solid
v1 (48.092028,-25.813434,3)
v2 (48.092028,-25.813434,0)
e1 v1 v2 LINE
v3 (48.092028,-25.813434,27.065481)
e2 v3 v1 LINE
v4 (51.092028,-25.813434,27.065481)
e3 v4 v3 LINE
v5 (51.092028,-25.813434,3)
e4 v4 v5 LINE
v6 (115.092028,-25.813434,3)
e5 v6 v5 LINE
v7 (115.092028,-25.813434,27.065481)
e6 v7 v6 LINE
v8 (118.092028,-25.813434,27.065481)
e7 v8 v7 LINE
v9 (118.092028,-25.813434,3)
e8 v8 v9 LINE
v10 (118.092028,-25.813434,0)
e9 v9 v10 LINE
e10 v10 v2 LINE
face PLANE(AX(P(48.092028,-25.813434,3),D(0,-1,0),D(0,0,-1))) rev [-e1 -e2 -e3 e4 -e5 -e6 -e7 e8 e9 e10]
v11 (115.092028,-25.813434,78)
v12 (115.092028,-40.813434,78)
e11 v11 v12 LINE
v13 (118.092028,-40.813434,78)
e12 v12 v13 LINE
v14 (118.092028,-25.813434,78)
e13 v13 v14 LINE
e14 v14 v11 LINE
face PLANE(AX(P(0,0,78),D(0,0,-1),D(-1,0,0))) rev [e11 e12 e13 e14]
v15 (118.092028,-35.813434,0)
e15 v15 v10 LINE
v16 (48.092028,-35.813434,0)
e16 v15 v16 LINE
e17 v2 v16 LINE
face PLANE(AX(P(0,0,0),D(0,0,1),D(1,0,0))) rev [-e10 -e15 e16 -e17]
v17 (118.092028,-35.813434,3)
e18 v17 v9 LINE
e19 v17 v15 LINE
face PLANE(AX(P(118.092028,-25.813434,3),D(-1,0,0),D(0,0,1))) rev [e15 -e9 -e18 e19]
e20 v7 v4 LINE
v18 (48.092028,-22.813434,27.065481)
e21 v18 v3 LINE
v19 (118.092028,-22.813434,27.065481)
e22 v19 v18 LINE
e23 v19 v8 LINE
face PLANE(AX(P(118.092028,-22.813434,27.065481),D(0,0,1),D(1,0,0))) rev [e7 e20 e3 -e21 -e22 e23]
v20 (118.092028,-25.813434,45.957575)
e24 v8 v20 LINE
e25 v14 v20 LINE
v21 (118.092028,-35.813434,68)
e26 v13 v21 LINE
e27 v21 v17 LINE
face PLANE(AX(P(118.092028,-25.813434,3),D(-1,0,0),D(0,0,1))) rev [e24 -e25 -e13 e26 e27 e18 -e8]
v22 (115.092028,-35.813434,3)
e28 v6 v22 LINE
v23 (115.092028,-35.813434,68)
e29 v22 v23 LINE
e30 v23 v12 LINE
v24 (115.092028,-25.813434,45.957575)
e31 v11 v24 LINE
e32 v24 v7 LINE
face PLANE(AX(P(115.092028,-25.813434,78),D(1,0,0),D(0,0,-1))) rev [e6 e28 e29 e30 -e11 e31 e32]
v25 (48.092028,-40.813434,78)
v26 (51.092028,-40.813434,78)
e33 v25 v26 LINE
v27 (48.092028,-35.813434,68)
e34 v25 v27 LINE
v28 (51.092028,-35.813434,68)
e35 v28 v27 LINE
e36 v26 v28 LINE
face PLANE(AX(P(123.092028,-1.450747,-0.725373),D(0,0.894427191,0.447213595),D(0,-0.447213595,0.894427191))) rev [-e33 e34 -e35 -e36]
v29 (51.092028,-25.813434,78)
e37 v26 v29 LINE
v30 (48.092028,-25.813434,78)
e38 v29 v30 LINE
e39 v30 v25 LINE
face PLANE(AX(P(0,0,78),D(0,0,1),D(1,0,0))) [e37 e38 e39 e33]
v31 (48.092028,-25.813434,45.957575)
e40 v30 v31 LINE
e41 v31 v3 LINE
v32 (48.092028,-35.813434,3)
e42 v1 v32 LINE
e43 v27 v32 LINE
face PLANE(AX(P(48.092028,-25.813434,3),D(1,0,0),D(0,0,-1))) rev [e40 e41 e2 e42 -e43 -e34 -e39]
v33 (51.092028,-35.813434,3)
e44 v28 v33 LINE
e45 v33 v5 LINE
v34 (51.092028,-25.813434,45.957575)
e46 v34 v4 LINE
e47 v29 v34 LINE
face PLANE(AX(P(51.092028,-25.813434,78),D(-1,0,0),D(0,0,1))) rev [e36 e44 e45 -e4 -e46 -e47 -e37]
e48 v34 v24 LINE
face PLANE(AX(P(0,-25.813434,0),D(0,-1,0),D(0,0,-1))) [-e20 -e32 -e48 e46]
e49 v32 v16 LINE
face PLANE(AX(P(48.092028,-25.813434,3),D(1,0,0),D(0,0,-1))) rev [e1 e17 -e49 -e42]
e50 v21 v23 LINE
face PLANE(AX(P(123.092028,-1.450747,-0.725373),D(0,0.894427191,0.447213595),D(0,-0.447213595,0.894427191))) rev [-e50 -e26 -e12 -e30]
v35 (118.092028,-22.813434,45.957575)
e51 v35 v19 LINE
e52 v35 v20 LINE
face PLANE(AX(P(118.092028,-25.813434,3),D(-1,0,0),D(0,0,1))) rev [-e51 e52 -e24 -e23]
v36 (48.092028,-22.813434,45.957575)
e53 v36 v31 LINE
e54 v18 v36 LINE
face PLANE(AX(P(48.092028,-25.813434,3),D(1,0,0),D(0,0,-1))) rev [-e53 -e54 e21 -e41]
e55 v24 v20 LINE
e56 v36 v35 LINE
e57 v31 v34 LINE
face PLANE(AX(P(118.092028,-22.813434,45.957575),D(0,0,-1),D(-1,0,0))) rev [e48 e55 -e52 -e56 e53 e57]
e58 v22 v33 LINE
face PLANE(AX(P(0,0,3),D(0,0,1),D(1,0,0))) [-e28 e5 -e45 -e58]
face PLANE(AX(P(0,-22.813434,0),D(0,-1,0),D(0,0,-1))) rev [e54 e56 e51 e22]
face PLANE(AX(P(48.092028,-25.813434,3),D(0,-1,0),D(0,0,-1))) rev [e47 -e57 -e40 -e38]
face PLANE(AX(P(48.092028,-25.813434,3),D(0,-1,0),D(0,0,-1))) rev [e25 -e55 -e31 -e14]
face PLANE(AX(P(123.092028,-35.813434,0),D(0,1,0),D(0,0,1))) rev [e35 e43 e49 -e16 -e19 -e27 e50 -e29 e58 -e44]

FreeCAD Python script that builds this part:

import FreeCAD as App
import Part
import Sketcher

V = App.Vector
Q = App.Units.Quantity

doc = App.newDocument("Part")
body = doc.addObject("PartDesign::Body", "Body")

# Sketch on XY plane
sketch1 = body.newObject("Sketcher::SketchObject", "Sketch")
sketch1.AttachmentSupport = (doc.getObject("XY_Plane"), [""])
sketch1.MapMode = "FlatFace"
sketch1.addGeometry(Part.LineSegment(V(48.092028, -25.813434, 0), V(48.092028, -40.813434, 0)), False)
sketch1.addGeometry(Part.LineSegment(V(48.092028, -40.813434, 0), V(118.092028, -40.813434, 0)), False)
sketch1.addGeometry(Part.LineSegment(V(118.092028, -40.813434, 0), V(118.092028, -25.813434, 0)), False)
sketch1.addGeometry(Part.LineSegment(V(118.092028, -25.813434, 0), V(48.092028, -25.813434, 0)), False)
sketch1.addConstraint(Sketcher.Constraint("Coincident", 0, 2, 1, 1))
sketch1.addConstraint(Sketcher.Constraint("Coincident", 1, 2, 2, 1))
sketch1.addConstraint(Sketcher.Constraint("Coincident", 2, 2, 3, 1))
sketch1.addConstraint(Sketcher.Constraint("Coincident", 3, 2, 0, 1))
sketch1.addConstraint(Sketcher.Constraint("Vertical", 0))
sketch1.addConstraint(Sketcher.Constraint("Horizontal", 1))
sketch1.addConstraint(Sketcher.Constraint("Vertical", 2))
sketch1.addConstraint(Sketcher.Constraint("Horizontal", 3))
sketch1.addConstraint(Sketcher.Constraint("DistanceX", 1, 1, 1, 2, Q("70 mm")))
sketch1.addConstraint(Sketcher.Constraint("DistanceY", 0, 2, 0, 1, Q("15 mm")))
sketch1.addConstraint(Sketcher.Constraint("DistanceX", -1, 1, 0, 2, Q("48.092028 mm")))
sketch1.addConstraint(Sketcher.Constraint("DistanceY", 0, 2, -1, 1, Q("40.813434 mm")))
pad1 = body.newObject("PartDesign::Pad", "Pad")
pad1.Profile = sketch1
pad1.Length = 3

# Sketch on XY plane
sketch2 = body.newObject("Sketcher::SketchObject", "Sketch001")
sketch2.AttachmentSupport = (doc.getObject("XY_Plane"), [""])
sketch2.MapMode = "FlatFace"
sketch2.AttachmentOffset = App.Placement(V(0, 0, 3), App.Rotation())
sketch2.addGeometry(Part.LineSegment(V(48.092028, -25.813434, 0), V(48.092028, -40.813434, 0)), False)
sketch2.addGeometry(Part.LineSegment(V(48.092028, -40.813434, 0), V(51.092028, -40.813434, 0)), False)
sketch2.addGeometry(Part.LineSegment(V(51.092028, -40.813434, 0), V(51.092028, -25.813434, 0)), False)
sketch2.addGeometry(Part.LineSegment(V(51.092028, -25.813434, 0), V(48.092028, -25.813434, 0)), False)
sketch2.addGeometry(Part.LineSegment(V(115.092028, -25.813434, 0), V(115.092028, -40.813434, 0)), False)
sketch2.addGeometry(Part.LineSegment(V(115.092028, -40.813434, 0), V(118.092028, -40.813434, 0)), False)
sketch2.addGeometry(Part.LineSegment(V(118.092028, -40.813434, 0), V(118.092028, -25.813434, 0)), False)
sketch2.addGeometry(Part.LineSegment(V(118.092028, -25.813434, 0), V(115.092028, -25.813434, 0)), False)
sketch2.addConstraint(Sketcher.Constraint("Coincident", 0, 2, 1, 1))
sketch2.addConstraint(Sketcher.Constraint("Coincident", 1, 2, 2, 1))
sketch2.addConstraint(Sketcher.Constraint("Coincident", 2, 2, 3, 1))
sketch2.addConstraint(Sketcher.Constraint("Coincident", 3, 2, 0, 1))
sketch2.addConstraint(Sketcher.Constraint("Coincident", 4, 2, 5, 1))
sketch2.addConstraint(Sketcher.Constraint("Coincident", 5, 2, 6, 1))
sketch2.addConstraint(Sketcher.Constraint("Coincident", 6, 2, 7, 1))
sketch2.addConstraint(Sketcher.Constraint("Coincident", 7, 2, 4, 1))
sketch2.addConstraint(Sketcher.Constraint("Vertical", 0))
sketch2.addConstraint(Sketcher.Constraint("Horizontal", 1))
sketch2.addConstraint(Sketcher.Constraint("Vertical", 2))
sketch2.addConstraint(Sketcher.Constraint("Horizontal", 3))
sketch2.addConstraint(Sketcher.Constraint("Vertical", 4))
sketch2.addConstraint(Sketcher.Constraint("Horizontal", 5))
sketch2.addConstraint(Sketcher.Constraint("Vertical", 6))
sketch2.addConstraint(Sketcher.Constraint("Horizontal", 7))
sketch2.addConstraint(Sketcher.Constraint("Horizontal", 1, 2, 4, 2))
sketch2.addConstraint(Sketcher.Constraint("Horizontal", 3, 2, 6, 2))
sketch2.addConstraint(Sketcher.Constraint("Equal", 3, 5))
sketch2.addConstraint(Sketcher.Constraint("DistanceX", 1, 1, 1, 2, Q("3 mm")))
sketch2.addConstraint(Sketcher.Constraint("DistanceY", 0, 2, 0, 1, Q("15 mm")))
sketch2.addConstraint(Sketcher.Constraint("DistanceX", 1, 2, 4, 2, Q("64 mm")))
sketch2.addConstraint(Sketcher.Constraint("DistanceX", -1, 1, 0, 2, Q("48.092028 mm")))
sketch2.addConstraint(Sketcher.Constraint("DistanceY", 0, 2, -1, 1, Q("40.813434 mm")))
pad2 = body.newObject("PartDesign::Pad", "Pad001")
pad2.Profile = sketch2
pad2.Length = 75

# Sketch on YZ plane
sketch3 = body.newObject("Sketcher::SketchObject", "Sketch002")
sketch3.AttachmentSupport = (doc.getObject("YZ_Plane"), [""])
sketch3.MapMode = "FlatFace"
sketch3.AttachmentOffset = App.Placement(V(0, 0, 48.092028), App.Rotation())
sketch3.addGeometry(Part.LineSegment(V(-40.813434, 0, 0), V(-40.813434, 78, 0)), False)
sketch3.addGeometry(Part.LineSegment(V(-40.813434, 78, 0), V(-35.813434, 68, 0)), False)
sketch3.addGeometry(Part.LineSegment(V(-35.813434, 68, 0), V(-35.813434, 0, 0)), False)
sketch3.addGeometry(Part.LineSegment(V(-35.813434, 0, 0), V(-40.813434, 0, 0)), False)
sketch3.addConstraint(Sketcher.Constraint("Coincident", 0, 2, 1, 1))
sketch3.addConstraint(Sketcher.Constraint("Coincident", 1, 2, 2, 1))
sketch3.addConstraint(Sketcher.Constraint("Coincident", 2, 2, 3, 1))
sketch3.addConstraint(Sketcher.Constraint("Coincident", 3, 2, 0, 1))
sketch3.addConstraint(Sketcher.Constraint("Vertical", 0))
sketch3.addConstraint(Sketcher.Constraint("Vertical", 2))
sketch3.addConstraint(Sketcher.Constraint("Horizontal", 3))
sketch3.addConstraint(Sketcher.Constraint("PointOnObject", 2, 2, -1))
sketch3.addConstraint(Sketcher.Constraint("DistanceX", 3, 2, 3, 1, Q("5 mm")))
sketch3.addConstraint(Sketcher.Constraint("DistanceY", 0, 1, 0, 2, Q("78 mm")))
sketch3.addConstraint(Sketcher.Constraint("DistanceY", 2, 2, 2, 1, Q("68 mm")))
sketch3.addConstraint(Sketcher.Constraint("DistanceX", 0, 2, -1, 1, Q("40.813434 mm")))
pocket1 = body.newObject("PartDesign::Pocket", "Pocket")
pocket1.Profile = sketch3
pocket1.Length = 75
pocket1.Reversed = True

# Sketch on XZ plane
sketch4 = body.newObject("Sketcher::SketchObject", "Sketch003")
sketch4.AttachmentSupport = (doc.getObject("XZ_Plane"), [""])
sketch4.MapMode = "FlatFace"
sketch4.AttachmentOffset = App.Placement(V(0, 0, 25.813434), App.Rotation())
sketch4.addGeometry(Part.LineSegment(V(48.092028, 27.065481, 0), V(48.092028, 45.957575, 0)), False)
sketch4.addGeometry(Part.LineSegment(V(48.092028, 45.957575, 0), V(118.092028, 45.957575, 0)), False)
sketch4.addGeometry(Part.LineSegment(V(118.092028, 45.957575, 0), V(118.092028, 27.065481, 0)), False)
sketch4.addGeometry(Part.LineSegment(V(118.092028, 27.065481, 0), V(48.092028, 27.065481, 0)), False)
sketch4.addConstraint(Sketcher.Constraint("Coincident", 0, 2, 1, 1))
sketch4.addConstraint(Sketcher.Constraint("Coincident", 1, 2, 2, 1))
sketch4.addConstraint(Sketcher.Constraint("Coincident", 2, 2, 3, 1))
sketch4.addConstraint(Sketcher.Constraint("Coincident", 3, 2, 0, 1))
sketch4.addConstraint(Sketcher.Constraint("Vertical", 0))
sketch4.addConstraint(Sketcher.Constraint("Horizontal", 1))
sketch4.addConstraint(Sketcher.Constraint("Vertical", 2))
sketch4.addConstraint(Sketcher.Constraint("Horizontal", 3))
sketch4.addConstraint(Sketcher.Constraint("DistanceX", 1, 1, 1, 2, Q("70 mm")))
sketch4.addConstraint(Sketcher.Constraint("DistanceY", 0, 1, 0, 2, Q("18.892094 mm")))
sketch4.addConstraint(Sketcher.Constraint("DistanceY", -1, 1, 2, 2, Q("27.065481 mm")))
sketch4.addConstraint(Sketcher.Constraint("DistanceX", -1, 1, 0, 2, Q("48.092028 mm")))
pad3 = body.newObject("PartDesign::Pad", "Pad002")
pad3.Profile = sketch4
pad3.Length = 3
pad3.Reversed = True

doc.recompute()
